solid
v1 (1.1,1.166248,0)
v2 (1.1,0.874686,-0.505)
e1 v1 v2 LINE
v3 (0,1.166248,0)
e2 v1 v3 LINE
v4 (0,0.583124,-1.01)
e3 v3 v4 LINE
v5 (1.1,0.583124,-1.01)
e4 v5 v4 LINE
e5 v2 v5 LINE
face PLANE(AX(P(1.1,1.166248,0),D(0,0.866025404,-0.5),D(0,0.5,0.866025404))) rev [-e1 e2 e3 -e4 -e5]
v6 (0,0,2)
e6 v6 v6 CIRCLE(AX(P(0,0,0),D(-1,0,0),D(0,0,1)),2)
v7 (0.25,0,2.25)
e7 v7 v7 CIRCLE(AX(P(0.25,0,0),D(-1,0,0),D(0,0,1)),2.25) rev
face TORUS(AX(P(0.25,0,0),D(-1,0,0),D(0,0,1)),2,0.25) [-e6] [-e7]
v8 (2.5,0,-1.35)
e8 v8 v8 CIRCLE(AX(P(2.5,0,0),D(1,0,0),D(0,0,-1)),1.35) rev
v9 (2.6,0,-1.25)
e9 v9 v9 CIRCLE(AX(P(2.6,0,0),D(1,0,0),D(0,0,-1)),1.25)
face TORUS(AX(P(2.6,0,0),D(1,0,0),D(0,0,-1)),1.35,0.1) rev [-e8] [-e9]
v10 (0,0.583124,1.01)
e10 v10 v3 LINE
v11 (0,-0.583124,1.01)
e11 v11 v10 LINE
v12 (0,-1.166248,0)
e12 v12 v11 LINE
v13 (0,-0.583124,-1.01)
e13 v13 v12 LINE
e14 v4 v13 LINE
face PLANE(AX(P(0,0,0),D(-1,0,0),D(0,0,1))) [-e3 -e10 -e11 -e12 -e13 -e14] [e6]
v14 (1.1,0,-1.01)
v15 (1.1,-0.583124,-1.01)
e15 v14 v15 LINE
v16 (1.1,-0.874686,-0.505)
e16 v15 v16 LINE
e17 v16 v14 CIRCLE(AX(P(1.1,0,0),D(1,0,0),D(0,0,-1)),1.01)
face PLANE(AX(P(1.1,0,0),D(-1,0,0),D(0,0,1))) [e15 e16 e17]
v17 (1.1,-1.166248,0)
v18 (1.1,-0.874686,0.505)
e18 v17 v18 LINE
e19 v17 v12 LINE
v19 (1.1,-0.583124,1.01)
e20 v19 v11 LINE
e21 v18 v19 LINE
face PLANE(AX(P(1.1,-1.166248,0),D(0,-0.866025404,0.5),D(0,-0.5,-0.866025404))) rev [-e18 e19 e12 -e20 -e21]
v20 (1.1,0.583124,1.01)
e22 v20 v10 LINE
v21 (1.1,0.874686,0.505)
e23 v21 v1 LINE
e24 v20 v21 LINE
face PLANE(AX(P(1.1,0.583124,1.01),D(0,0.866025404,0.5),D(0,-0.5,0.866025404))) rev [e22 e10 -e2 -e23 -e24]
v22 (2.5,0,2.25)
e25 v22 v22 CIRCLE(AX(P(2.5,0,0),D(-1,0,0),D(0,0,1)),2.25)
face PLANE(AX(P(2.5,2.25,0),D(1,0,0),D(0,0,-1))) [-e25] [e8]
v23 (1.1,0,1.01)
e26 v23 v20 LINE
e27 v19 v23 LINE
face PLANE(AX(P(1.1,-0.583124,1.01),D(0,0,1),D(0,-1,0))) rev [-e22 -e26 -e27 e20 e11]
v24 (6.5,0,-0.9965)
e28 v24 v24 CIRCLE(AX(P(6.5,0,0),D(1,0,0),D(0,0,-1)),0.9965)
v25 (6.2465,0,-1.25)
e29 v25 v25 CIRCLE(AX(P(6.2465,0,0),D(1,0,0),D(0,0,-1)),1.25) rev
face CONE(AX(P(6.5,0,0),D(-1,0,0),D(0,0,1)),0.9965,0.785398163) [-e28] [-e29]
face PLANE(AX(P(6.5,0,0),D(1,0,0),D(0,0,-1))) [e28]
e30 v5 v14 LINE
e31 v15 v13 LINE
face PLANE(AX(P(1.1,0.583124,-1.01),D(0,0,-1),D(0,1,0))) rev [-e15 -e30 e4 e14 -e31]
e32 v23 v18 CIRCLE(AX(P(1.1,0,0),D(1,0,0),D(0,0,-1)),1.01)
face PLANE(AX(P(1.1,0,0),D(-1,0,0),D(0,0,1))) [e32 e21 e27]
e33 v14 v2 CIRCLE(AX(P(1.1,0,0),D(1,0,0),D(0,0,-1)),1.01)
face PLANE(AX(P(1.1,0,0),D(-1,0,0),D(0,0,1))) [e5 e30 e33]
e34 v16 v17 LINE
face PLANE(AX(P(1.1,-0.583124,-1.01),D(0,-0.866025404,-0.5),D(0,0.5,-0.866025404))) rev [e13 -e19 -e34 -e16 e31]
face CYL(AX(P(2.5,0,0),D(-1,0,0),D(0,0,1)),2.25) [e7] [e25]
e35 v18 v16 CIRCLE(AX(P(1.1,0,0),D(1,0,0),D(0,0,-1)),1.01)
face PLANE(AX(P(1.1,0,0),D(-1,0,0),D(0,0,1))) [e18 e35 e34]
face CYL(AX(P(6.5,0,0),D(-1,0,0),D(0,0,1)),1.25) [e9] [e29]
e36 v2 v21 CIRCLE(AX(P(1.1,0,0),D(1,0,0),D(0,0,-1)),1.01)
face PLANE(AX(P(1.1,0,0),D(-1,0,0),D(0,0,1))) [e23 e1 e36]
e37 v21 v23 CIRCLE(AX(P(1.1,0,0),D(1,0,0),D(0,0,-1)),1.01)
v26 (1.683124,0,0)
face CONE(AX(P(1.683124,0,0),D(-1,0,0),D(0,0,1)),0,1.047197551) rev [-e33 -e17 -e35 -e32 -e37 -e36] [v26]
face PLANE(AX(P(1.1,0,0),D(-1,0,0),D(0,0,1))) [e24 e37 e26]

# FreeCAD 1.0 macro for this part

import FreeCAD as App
import Part
import Sketcher

V = App.Vector
Q = App.Units.Quantity


def edges_at(feature, points):
    """Names of the edges that pass closest to the given points."""
    edges = feature.Shape.Edges
    near = lambda p: min(range(len(edges)), key=lambda i: edges[i].distToShape(Part.Vertex(*p))[0])
    return sorted({f"Edge{near(p) + 1}" for p in points})


def add_polygon(sketch, points):
    """Adds a closed chain of lines whose ends are joined by coincident constraints."""
    first, n = sketch.GeometryCount, len(points)
    for a, b in zip(points, points[1:] + points[:1]):
        sketch.addGeometry(Part.LineSegment(App.Vector(*a, 0), App.Vector(*b, 0)), False)
    for i in range(n):
        sketch.addConstraint(Sketcher.Constraint("Coincident", first + i, 2, first + (i + 1) % n, 1))

doc = App.newDocument("Part")
body = doc.addObject("PartDesign::Body", "Body")

# Sketch on XY plane
sketch1 = body.newObject("Sketcher::SketchObject", "Sketch")
sketch1.AttachmentSupport = (doc.getObject("XY_Plane"), [""])
sketch1.MapMode = "FlatFace"
add_polygon(sketch1, [(2.5, 2.2), (2.5, 0), (0, 0), (0, 2.2)])  # lines 0-3
sketch1.addConstraint([
    Sketcher.Constraint("Vertical", 0),
    Sketcher.Constraint("Horizontal", 1),
    Sketcher.Constraint("Vertical", 2),
    Sketcher.Constraint("Horizontal", 3),
    Sketcher.Constraint("Coincident", 1, 2, -1, 1),
    Sketcher.Constraint("DistanceX", 1, 2, 1, 1, Q("2.5 mm")),
    Sketcher.Constraint("DistanceY", 0, 2, 0, 1, Q("2.25 mm")),
])
revolution = body.newObject("PartDesign::Revolution", "Revolution")
revolution.Profile = sketch1
revolution.ReferenceAxis = (sketch1, ["H_Axis"])
revolution.Angle = 360

# Sketch on YZ plane
sketch2 = body.newObject("Sketcher::SketchObject", "Sketch001")
sketch2.AttachmentSupport = (doc.getObject("YZ_Plane"), [""])
sketch2.MapMode = "FlatFace"
sketch2.AttachmentOffset = App.Placement(V(0, 0, 2.5), App.Rotation())
sketch2.addGeometry(Part.Circle(V(0, 0, 0), V(0, 0, 1), 1.2), False)
sketch2.addConstraint([
    Sketcher.Constraint("Coincident", 0, 3, -1, 1),
    Sketcher.Constraint("Diameter", 0, Q("2.5 mm")),
])
pad1 = body.newObject("PartDesign::Pad", "Pad")
pad1.Profile = sketch2
pad1.Length = 4

# Sketch on YZ plane
sketch3 = body.newObject("Sketcher::SketchObject", "Sketch002")
sketch3.AttachmentSupport = (doc.getObject("YZ_Plane"), [""])
sketch3.MapMode = "FlatFace"
add_polygon(sketch3, [(-0.6, -1), (-1.2, 0), (-0.6, 1), (0.6, 1), (1.2, 0), (0.6, -1)])  # lines 0-5
sketch3.addConstraint([
    Sketcher.Constraint("Horizontal", 2),
    Sketcher.Constraint("Horizontal", 5),
    Sketcher.Constraint("Symmetric", 0, 2, 3, 2, -1, 1),
    Sketcher.Constraint("Symmetric", 1, 2, 4, 2, -1, 1),
    Sketcher.Constraint("PointOnObject", 0, 2, -1),
    Sketcher.Constraint("Parallel", 0, 3),
    Sketcher.Constraint("Vertical", 2, 2, 4, 2),
    Sketcher.Constraint("Angle", 0, Q("120 deg")),
    Sketcher.Constraint("DistanceY", -1, 1, 1, 2, Q("1.01 mm")),
    Sketcher.Constraint("DistanceX", 2, 1, 2, 2, Q("1.166248 mm")),
])
pocket1 = body.newObject("PartDesign::Pocket", "Pocket")
pocket1.Profile = sketch3
pocket1.Length = 1.1
pocket1.Reversed = True

# Sketch on XY plane
sketch4 = body.newObject("Sketcher::SketchObject", "Sketch003")
sketch4.AttachmentSupport = (doc.getObject("XY_Plane"), [""])
sketch4.MapMode = "FlatFace"
add_polygon(sketch4, [(1.1, 1), (1.1, 0), (1.7, 0)])  # lines 0-2
sketch4.addConstraint([
    Sketcher.Constraint("Vertical", 0),
    Sketcher.Constraint("Horizontal", 1),
    Sketcher.Constraint("PointOnObject", 0, 2, -1),
    Sketcher.Constraint("Angle", 2, Q("120 deg")),
    Sketcher.Constraint("DistanceY", 0, 2, 0, 1, Q("1.01 mm")),
    Sketcher.Constraint("DistanceX", -1, 1, 0, 2, Q("1.1 mm")),
])
groove = body.newObject("PartDesign::Groove", "Groove")
groove.Profile = sketch4
groove.ReferenceAxis = (sketch4, ["H_Axis"])
groove.Angle = 360
doc.recompute()

chamfer = body.newObject("PartDesign::Chamfer", "Chamfer")
chamfer.Base = (groove, edges_at(groove, [(6.5, 0, 1.25)]))
chamfer.Size = 0.2535
doc.recompute()

fillet = body.newObject("PartDesign::Fillet", "Fillet")
fillet.Base = (chamfer, edges_at(chamfer, [(2.5, 0, 1.25)]))
fillet.Radius = 0.1
doc.recompute()

fillet2 = body.newObject("PartDesign::Fillet", "Fillet001")
fillet2.Base = (fillet, edges_at(fillet, [(0, 0, -2.25)]))
fillet2.Radius = 0.25

doc.recompute()
